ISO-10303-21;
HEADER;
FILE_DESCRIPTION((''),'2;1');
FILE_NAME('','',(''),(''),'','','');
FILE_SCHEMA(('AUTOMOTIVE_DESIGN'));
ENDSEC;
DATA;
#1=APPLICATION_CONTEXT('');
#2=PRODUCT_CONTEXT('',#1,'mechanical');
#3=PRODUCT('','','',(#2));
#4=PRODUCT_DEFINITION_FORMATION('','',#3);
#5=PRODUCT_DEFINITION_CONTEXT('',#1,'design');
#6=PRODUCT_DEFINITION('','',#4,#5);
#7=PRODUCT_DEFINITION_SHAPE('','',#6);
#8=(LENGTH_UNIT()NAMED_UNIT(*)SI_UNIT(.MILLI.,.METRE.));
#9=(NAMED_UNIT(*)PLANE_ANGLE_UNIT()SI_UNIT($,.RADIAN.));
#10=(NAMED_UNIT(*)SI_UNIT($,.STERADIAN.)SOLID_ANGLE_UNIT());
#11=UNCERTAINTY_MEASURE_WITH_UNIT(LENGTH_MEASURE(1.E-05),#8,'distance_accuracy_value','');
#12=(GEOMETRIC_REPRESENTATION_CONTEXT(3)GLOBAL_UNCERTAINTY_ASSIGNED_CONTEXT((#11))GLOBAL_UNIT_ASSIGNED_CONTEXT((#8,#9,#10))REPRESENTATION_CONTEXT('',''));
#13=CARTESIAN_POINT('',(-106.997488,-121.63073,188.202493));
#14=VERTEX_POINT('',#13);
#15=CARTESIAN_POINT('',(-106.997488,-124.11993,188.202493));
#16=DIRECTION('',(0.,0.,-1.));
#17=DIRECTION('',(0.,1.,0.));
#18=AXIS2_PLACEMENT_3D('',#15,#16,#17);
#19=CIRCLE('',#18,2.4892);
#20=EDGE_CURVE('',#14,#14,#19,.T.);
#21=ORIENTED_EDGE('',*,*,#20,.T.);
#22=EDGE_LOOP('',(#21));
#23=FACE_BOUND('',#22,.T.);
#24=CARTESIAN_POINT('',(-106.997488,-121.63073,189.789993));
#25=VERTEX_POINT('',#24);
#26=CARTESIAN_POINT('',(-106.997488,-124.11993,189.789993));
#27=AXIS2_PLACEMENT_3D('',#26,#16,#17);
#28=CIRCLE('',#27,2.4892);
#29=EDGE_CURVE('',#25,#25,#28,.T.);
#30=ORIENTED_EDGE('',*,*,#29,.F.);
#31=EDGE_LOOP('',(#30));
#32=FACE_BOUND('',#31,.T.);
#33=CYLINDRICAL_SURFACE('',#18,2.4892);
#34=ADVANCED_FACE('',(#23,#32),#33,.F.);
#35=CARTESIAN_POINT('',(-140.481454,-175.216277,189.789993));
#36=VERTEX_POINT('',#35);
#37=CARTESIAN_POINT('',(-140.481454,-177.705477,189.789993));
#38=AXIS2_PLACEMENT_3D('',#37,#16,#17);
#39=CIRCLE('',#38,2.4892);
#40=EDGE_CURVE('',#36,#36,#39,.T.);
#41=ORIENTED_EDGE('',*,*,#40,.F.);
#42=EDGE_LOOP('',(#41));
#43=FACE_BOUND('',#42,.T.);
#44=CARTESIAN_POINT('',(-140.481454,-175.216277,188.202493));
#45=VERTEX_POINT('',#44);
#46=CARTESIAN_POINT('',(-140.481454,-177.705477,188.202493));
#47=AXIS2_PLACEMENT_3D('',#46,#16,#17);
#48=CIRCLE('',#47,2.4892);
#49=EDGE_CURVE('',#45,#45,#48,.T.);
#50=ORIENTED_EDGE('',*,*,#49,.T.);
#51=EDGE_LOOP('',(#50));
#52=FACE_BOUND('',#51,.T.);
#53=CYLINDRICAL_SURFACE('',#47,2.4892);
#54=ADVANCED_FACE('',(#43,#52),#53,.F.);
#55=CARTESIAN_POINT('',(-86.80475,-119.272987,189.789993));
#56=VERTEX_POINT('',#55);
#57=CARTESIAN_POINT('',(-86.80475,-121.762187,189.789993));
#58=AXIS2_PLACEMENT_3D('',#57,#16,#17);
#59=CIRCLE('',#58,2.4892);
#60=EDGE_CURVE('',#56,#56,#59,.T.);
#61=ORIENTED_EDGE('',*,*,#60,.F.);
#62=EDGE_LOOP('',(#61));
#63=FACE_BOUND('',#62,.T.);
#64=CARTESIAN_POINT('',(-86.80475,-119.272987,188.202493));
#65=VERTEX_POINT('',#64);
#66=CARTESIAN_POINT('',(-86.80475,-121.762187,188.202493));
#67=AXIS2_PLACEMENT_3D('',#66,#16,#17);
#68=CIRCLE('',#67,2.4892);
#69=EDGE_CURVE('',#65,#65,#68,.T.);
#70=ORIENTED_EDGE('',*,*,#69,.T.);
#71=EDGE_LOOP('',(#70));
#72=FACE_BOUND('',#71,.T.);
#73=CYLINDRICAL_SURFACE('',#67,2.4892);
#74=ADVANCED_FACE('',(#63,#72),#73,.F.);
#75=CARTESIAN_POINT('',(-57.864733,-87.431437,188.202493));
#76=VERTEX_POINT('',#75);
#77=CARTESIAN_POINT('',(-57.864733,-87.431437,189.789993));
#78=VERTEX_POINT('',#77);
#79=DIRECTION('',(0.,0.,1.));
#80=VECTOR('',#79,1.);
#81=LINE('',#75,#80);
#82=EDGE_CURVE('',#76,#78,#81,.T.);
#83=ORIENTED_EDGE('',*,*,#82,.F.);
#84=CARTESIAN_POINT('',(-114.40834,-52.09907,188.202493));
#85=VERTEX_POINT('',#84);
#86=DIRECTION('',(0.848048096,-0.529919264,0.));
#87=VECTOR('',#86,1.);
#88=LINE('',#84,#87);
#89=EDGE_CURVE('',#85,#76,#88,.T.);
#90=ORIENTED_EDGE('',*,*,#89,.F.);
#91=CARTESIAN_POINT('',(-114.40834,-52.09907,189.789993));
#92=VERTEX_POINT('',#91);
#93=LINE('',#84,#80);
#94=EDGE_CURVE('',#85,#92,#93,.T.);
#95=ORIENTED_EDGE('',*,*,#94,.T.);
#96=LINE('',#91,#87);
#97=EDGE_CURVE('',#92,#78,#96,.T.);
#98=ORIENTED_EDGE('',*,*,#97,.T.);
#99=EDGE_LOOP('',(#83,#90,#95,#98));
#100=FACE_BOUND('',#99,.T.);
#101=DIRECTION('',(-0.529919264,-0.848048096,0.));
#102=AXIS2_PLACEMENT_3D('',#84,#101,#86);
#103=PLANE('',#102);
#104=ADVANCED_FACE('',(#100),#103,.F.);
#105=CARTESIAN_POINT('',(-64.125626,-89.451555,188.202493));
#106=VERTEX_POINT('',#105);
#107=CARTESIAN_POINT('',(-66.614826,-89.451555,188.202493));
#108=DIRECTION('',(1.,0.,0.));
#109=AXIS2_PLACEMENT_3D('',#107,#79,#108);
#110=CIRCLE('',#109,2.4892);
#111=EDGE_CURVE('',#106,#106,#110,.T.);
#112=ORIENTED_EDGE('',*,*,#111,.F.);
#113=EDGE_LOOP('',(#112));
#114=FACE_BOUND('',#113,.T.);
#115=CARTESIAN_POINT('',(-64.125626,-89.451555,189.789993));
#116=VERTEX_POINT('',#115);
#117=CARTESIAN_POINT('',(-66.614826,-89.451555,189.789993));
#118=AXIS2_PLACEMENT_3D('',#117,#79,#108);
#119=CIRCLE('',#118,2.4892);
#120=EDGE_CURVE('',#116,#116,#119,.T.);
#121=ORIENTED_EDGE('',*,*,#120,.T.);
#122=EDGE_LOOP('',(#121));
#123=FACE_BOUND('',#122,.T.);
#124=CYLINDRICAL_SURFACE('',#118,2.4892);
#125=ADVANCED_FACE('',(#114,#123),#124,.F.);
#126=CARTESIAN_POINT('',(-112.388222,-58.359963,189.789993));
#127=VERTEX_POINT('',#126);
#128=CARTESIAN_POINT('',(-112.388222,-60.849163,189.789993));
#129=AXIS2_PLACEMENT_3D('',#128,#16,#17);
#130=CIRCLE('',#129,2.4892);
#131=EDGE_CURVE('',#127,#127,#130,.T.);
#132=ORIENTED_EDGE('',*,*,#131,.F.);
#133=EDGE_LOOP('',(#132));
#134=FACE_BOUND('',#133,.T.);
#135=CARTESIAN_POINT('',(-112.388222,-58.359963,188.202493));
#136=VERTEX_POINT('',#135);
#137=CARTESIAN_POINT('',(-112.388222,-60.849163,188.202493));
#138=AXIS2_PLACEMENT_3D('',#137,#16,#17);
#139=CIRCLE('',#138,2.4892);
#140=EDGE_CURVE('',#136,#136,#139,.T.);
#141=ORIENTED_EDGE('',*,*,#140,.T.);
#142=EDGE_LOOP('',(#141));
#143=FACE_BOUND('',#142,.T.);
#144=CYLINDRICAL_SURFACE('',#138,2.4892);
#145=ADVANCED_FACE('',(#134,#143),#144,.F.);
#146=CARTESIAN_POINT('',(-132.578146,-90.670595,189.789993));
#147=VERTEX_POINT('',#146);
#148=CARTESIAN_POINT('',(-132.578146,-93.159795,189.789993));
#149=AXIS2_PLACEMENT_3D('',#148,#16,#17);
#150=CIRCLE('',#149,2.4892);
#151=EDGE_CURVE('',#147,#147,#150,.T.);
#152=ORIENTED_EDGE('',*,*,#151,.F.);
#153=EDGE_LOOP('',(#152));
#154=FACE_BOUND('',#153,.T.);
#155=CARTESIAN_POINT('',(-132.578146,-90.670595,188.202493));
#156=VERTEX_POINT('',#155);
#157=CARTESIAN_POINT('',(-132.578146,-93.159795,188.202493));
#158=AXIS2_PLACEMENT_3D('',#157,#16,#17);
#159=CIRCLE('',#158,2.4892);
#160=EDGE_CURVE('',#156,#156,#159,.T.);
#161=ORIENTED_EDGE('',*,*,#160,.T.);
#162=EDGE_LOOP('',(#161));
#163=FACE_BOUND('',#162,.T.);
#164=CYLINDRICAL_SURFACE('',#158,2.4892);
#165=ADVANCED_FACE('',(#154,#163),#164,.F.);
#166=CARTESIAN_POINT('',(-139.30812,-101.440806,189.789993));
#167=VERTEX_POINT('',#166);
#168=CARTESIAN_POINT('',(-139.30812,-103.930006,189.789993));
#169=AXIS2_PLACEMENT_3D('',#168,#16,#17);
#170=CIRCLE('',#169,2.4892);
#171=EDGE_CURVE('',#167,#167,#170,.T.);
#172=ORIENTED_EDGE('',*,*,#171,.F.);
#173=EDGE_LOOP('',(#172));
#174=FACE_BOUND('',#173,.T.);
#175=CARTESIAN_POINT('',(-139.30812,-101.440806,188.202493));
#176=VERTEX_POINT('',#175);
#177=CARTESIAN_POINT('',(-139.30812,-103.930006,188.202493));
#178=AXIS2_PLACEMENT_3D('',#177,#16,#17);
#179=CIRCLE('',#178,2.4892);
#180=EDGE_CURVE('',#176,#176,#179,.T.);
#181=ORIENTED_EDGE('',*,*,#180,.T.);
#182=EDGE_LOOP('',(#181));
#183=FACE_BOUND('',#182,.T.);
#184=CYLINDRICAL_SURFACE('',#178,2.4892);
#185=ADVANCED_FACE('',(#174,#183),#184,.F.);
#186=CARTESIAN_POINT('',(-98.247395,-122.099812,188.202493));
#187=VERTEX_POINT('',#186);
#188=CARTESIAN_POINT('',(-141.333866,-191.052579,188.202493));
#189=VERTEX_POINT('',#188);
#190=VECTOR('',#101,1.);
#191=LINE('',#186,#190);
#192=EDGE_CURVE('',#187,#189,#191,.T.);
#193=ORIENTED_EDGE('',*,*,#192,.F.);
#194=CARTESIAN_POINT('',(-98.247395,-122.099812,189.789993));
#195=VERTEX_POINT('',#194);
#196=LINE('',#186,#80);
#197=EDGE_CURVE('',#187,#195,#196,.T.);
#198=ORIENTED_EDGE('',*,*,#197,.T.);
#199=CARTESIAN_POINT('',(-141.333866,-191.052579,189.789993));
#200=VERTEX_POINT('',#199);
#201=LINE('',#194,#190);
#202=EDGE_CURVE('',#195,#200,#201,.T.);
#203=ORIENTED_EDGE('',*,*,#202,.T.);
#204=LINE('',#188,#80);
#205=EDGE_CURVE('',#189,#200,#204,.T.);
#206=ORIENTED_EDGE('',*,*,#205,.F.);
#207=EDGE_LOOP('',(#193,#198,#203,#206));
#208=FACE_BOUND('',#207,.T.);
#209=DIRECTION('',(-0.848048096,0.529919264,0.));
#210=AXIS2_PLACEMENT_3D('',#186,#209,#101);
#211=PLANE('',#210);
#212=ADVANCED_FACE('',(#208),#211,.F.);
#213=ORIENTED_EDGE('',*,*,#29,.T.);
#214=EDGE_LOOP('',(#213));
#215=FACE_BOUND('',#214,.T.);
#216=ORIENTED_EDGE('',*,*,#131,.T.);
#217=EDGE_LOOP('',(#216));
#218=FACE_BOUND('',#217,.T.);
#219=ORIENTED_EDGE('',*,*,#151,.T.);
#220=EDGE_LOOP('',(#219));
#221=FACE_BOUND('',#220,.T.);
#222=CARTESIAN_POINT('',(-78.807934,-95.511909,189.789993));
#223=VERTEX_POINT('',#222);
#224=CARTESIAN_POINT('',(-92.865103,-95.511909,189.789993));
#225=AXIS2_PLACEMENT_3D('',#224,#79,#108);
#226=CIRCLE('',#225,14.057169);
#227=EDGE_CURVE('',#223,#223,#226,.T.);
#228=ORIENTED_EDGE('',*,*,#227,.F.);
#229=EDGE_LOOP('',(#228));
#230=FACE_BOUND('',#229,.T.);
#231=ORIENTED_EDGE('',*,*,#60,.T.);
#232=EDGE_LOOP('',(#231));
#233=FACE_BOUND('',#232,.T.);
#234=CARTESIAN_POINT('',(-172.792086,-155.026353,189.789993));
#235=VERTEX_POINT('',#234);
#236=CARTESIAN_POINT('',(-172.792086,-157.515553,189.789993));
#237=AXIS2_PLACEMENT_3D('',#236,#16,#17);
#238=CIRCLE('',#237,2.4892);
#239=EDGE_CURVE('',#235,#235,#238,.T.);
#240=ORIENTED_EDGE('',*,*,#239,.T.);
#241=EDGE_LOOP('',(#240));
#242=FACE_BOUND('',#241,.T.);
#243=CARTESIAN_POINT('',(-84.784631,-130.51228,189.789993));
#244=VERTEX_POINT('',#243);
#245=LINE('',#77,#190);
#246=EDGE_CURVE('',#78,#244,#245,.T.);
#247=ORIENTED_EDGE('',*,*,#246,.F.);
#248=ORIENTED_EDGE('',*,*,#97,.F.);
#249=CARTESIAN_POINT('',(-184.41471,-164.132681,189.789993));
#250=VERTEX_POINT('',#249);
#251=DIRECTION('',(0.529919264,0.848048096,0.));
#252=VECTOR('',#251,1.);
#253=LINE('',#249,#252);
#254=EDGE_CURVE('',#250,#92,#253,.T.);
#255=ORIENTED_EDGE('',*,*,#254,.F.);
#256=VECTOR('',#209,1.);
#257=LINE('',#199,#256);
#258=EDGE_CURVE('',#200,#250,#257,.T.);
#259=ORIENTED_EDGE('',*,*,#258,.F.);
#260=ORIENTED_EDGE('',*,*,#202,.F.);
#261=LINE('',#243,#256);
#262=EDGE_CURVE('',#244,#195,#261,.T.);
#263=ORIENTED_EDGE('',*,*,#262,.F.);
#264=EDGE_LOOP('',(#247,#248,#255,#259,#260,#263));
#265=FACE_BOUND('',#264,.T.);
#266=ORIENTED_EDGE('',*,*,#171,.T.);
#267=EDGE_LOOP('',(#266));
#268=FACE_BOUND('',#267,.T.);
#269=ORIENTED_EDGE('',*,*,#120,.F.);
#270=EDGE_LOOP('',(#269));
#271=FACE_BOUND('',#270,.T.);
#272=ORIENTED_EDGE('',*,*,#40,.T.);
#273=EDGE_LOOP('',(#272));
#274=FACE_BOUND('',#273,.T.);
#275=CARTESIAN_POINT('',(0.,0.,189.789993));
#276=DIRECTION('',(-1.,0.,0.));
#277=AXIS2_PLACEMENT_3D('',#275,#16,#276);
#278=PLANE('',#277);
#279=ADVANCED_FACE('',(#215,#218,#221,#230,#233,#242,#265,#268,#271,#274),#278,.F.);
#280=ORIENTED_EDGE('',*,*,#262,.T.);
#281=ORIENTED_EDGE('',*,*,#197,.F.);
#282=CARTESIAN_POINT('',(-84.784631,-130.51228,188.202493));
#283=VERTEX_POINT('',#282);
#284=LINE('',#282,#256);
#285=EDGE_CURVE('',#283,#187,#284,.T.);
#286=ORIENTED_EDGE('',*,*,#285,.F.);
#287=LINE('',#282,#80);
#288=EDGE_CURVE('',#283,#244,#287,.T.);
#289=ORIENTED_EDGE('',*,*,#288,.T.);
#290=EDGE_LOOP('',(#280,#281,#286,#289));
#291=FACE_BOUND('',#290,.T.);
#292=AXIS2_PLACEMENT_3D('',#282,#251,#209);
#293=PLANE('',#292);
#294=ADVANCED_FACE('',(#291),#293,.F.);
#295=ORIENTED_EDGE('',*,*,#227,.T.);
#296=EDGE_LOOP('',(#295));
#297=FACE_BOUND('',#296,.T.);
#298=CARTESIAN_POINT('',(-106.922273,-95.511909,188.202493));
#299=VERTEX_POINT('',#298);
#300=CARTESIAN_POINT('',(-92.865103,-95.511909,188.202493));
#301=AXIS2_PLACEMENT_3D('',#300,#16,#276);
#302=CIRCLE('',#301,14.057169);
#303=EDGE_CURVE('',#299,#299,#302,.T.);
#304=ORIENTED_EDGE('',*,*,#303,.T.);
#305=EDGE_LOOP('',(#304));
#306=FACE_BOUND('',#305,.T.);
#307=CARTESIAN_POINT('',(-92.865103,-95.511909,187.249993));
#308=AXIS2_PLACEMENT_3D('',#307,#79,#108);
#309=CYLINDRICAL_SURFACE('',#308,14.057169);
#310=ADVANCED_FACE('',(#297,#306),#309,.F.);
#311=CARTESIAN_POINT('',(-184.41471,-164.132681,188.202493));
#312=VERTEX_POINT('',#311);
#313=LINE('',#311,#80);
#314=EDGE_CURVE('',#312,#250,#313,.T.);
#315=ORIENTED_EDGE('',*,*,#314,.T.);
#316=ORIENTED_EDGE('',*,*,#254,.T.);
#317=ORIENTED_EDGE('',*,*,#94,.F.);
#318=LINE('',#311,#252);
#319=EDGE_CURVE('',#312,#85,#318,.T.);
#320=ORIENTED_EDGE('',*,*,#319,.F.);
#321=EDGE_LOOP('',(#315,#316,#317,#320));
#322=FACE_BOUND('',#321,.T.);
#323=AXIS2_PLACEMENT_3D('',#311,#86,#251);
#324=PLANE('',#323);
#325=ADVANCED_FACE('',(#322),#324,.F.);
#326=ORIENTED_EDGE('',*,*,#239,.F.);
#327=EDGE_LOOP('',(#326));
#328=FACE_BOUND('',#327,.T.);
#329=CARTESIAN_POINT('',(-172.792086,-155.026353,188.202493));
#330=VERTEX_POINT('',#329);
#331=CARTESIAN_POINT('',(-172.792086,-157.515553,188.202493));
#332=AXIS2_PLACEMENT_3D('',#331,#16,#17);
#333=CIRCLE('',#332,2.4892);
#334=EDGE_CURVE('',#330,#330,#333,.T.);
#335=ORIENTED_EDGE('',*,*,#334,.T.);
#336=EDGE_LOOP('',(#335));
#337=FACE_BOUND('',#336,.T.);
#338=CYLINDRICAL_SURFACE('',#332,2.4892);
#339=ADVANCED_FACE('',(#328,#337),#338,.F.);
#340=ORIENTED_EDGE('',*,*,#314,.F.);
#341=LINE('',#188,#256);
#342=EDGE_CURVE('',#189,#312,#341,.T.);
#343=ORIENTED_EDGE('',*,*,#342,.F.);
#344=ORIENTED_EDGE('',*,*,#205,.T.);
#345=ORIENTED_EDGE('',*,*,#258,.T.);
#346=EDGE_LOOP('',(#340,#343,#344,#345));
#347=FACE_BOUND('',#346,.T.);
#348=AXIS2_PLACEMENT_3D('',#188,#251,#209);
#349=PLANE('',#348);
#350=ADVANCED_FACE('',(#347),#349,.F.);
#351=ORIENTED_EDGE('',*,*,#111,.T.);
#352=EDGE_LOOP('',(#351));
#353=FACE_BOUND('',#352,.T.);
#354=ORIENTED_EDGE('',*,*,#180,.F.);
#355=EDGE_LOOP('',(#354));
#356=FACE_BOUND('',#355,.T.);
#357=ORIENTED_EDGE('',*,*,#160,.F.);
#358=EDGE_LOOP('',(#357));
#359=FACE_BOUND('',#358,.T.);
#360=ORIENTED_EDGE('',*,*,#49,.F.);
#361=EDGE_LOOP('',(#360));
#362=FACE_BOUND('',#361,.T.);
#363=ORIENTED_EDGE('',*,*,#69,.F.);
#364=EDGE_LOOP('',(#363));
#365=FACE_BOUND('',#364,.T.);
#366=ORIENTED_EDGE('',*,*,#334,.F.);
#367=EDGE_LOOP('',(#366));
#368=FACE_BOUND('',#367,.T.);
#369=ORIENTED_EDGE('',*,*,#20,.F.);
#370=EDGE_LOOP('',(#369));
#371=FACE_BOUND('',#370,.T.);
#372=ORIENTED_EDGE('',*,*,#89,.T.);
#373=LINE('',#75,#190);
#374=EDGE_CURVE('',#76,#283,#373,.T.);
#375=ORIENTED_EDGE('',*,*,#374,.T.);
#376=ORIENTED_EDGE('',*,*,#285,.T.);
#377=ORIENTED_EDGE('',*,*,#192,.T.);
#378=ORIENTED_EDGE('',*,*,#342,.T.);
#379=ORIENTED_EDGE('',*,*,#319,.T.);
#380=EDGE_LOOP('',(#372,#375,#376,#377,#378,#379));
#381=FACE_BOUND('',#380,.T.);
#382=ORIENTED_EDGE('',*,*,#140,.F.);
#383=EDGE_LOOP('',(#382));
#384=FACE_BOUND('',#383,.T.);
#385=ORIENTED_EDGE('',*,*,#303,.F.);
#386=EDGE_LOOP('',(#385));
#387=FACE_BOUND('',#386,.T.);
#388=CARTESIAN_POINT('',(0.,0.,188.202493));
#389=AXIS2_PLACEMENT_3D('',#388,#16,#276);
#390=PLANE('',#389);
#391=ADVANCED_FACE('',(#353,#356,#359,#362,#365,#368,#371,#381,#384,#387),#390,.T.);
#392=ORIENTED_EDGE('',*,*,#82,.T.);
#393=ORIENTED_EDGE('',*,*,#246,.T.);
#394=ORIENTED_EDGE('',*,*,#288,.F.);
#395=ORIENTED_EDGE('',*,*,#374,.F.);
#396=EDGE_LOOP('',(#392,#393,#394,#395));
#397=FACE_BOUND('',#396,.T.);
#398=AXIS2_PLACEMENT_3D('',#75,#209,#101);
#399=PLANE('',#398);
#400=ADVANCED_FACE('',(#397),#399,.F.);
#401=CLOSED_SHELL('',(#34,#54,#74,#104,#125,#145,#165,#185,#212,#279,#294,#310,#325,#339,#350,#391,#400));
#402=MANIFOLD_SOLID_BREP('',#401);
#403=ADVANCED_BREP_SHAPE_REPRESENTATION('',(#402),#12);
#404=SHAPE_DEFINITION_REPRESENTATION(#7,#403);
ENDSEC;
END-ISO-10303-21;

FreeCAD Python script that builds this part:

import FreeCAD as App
import Part
import Sketcher

V = App.Vector
Q = App.Units.Quantity

doc = App.newDocument("Part")
body = doc.addObject("PartDesign::Body", "Body")

sketch1 = body.newObject("Sketcher::SketchObject", "Sketch")
sketch1.AttachmentSupport = (doc.getObject("XY_Plane"), [""])
sketch1.MapMode = "FlatFace"
sketch1.AttachmentOffset = App.Placement(V(0, 0, 189.789993), App.Rotation())
sketch1.addGeometry(Part.LineSegment(V(-58, -87, 0), V(-85, -131, 0)), False)
sketch1.addGeometry(Part.LineSegment(V(-85, -131, 0), V(-98, -122, 0)), False)
sketch1.addGeometry(Part.LineSegment(V(-98, -122, 0), V(-141, -191, 0)), False)
sketch1.addGeometry(Part.LineSegment(V(-141, -191, 0), V(-184, -164, 0)), False)
sketch1.addGeometry(Part.LineSegment(V(-184, -164, 0), V(-114, -52, 0)), False)
sketch1.addGeometry(Part.LineSegment(V(-114, -52, 0), V(-58, -87, 0)), False)
sketch1.addConstraint(Sketcher.Constraint("Coincident", 0, 2, 1, 1))
sketch1.addConstraint(Sketcher.Constraint("Coincident", 1, 2, 2, 1))
sketch1.addConstraint(Sketcher.Constraint("Coincident", 2, 2, 3, 1))
sketch1.addConstraint(Sketcher.Constraint("Coincident", 3, 2, 4, 1))
sketch1.addConstraint(Sketcher.Constraint("Coincident", 4, 2, 5, 1))
sketch1.addConstraint(Sketcher.Constraint("Coincident", 5, 2, 0, 1))
sketch1.addConstraint(Sketcher.Constraint("Perpendicular", 0, 1))
sketch1.addConstraint(Sketcher.Constraint("Perpendicular", 1, 2))
sketch1.addConstraint(Sketcher.Constraint("Perpendicular", 2, 3))
sketch1.addConstraint(Sketcher.Constraint("Perpendicular", 3, 4))
sketch1.addConstraint(Sketcher.Constraint("Perpendicular", 4, 5))
sketch1.addConstraint(Sketcher.Constraint("Equal", 0, 3))
sketch1.addConstraint(Sketcher.Constraint("Distance", 0, Q("2 in")))
sketch1.addConstraint(Sketcher.Constraint("Angle", 0, Q("-122 deg")))
sketch1.addConstraint(Sketcher.Constraint("Distance", 1, Q("0.625 in")))
sketch1.addConstraint(Sketcher.Constraint("DistanceY", 2, 2, 0, 2, 60.540299))
sketch1.addConstraint(Sketcher.Constraint("DistanceX", 0, 2, -1, 1, 84.784631))
sketch1.addConstraint(Sketcher.Constraint("DistanceY", 0, 2, -1, 1, 130.51228))
pad1 = body.newObject("PartDesign::Pad", "Pad")
pad1.Profile = sketch1
pad1.Length = Q("0.0625 in")
pad1.Reversed = True

sketch2 = body.newObject("Sketcher::SketchObject", "Sketch001")
sketch2.AttachmentSupport = (doc.getObject("XY_Plane"), [""])
sketch2.MapMode = "FlatFace"
sketch2.AttachmentOffset = App.Placement(V(0, 0, 188.202493), App.Rotation())
sketch2.addGeometry(Part.Circle(V(-107, -124.1, 0), V(0, 0, 1), 2.5), False)
sketch2.addGeometry(Part.Circle(V(-86.8, -121.8, 0), V(0, 0, 1), 2.5), False)
sketch2.addGeometry(Part.Circle(V(-112.4, -60.8, 0), V(0, 0, 1), 2.5), False)
sketch2.addGeometry(Part.Circle(V(-132.6, -93.2, 0), V(0, 0, 1), 2.5), False)
sketch2.addGeometry(Part.Circle(V(-139.3, -103.9, 0), V(0, 0, 1), 2.5), False)
sketch2.addGeometry(Part.Circle(V(-172.8, -157.5, 0), V(0, 0, 1), 2.5), False)
sketch2.addGeometry(Part.Circle(V(-140.5, -177.7, 0), V(0, 0, 1), 2.5), False)
sketch2.addConstraint(Sketcher.Constraint("Equal", 0, 1))
sketch2.addConstraint(Sketcher.Constraint("Equal", 1, 2))
sketch2.addConstraint(Sketcher.Constraint("Equal", 2, 3))
sketch2.addConstraint(Sketcher.Constraint("Equal", 3, 4))
sketch2.addConstraint(Sketcher.Constraint("Equal", 4, 5))
sketch2.addConstraint(Sketcher.Constraint("Equal", 5, 6))
sketch2.addConstraint(Sketcher.Constraint("Diameter", 0, Q("0.196 in")))
sketch2.addConstraint(Sketcher.Constraint("DistanceX", 4, 3, 2, 3, 26.919899))
sketch2.addConstraint(Sketcher.Constraint("DistanceX", 5, 3, 0, 3, 65.794599))
sketch2.addConstraint(Sketcher.Constraint("DistanceY", 0, 3, -1, 1, 124.11993))
sketch2.addConstraint(Sketcher.Constraint("DistanceX", 1, 3, -1, 1, 86.80475))
sketch2.addConstraint(Sketcher.Constraint("DistanceX", 2, 3, -1, 1, 112.388222))
sketch2.addConstraint(Sketcher.Constraint("DistanceX", 0, 3, 1, 3, 20.192738))
sketch2.addConstraint(Sketcher.Constraint("DistanceY", 4, 3, 3, 3, 10.770211))
sketch2.addConstraint(Sketcher.Constraint("DistanceY", 1, 3, 4, 3, 17.832181))
sketch2.addConstraint(Sketcher.Constraint("DistanceX", 5, 3, 3, 3, 40.213941))
sketch2.addConstraint(Sketcher.Constraint("DistanceY", 5, 3, 3, 3, 64.355758))
sketch2.addConstraint(Sketcher.Constraint("DistanceY", 5, 3, 2, 3, 96.666391))
sketch2.addConstraint(Sketcher.Constraint("DistanceY", 6, 3, 4, 3, 73.775471))
sketch2.addConstraint(Sketcher.Constraint("DistanceX", 6, 3, 3, 3, 7.903308))
sketch2.addConstraint(Sketcher.Constraint("DistanceY", 1, 3, -1, 1, 121.762187))
doc.recompute()
hole = body.newObject("PartDesign::Hole", "Hole")
hole.Profile = sketch2
hole.ThreadType = "None"
hole.Diameter = Q("0.196 in")
hole.DepthType = "ThroughAll"
hole.Reversed = True

sketch3 = body.newObject("Sketcher::SketchObject", "Sketch002")
sketch3.AttachmentSupport = (doc.getObject("XY_Plane"), [""])
sketch3.MapMode = "FlatFace"
sketch3.AttachmentOffset = App.Placement(V(0, 0, 189.789993), App.Rotation())
sketch3.addGeometry(Part.Circle(V(-93, -96, 0), V(0, 0, 1), 14), False)
sketch3.addConstraint(Sketcher.Constraint("Diameter", 0, 28.114339))
sketch3.addConstraint(Sketcher.Constraint("DistanceY", 0, 3, -1, 1, 95.511909))
sketch3.addConstraint(Sketcher.Constraint("DistanceX", 0, 3, -1, 1, 92.865103))
pocket1 = body.newObject("PartDesign::Pocket", "Pocket")
pocket1.Profile = sketch3
pocket1.Length = Q("0.1 in")

sketch4 = body.newObject("Sketcher::SketchObject", "Sketch003")
sketch4.AttachmentSupport = (doc.getObject("XY_Plane"), [""])
sketch4.MapMode = "FlatFace"
sketch4.AttachmentOffset = App.Placement(V(0, 0, 189.789993), App.Rotation())
sketch4.addGeometry(Part.Circle(V(-66.6, -89.5, 0), V(0, 0, 1), 2.5), False)
sketch4.addConstraint(Sketcher.Constraint("Diameter", 0, Q("0.196 in")))
sketch4.addConstraint(Sketcher.Constraint("DistanceX", 0, 3, -1, 1, 66.614826))
sketch4.addConstraint(Sketcher.Constraint("DistanceY", 0, 3, -1, 1, 89.451555))
doc.recompute()
hole2 = body.newObject("PartDesign::Hole", "Hole001")
hole2.Profile = sketch4
hole2.ThreadType = "None"
hole2.Diameter = Q("0.196 in")
hole2.DepthType = "ThroughAll"

doc.recompute()
